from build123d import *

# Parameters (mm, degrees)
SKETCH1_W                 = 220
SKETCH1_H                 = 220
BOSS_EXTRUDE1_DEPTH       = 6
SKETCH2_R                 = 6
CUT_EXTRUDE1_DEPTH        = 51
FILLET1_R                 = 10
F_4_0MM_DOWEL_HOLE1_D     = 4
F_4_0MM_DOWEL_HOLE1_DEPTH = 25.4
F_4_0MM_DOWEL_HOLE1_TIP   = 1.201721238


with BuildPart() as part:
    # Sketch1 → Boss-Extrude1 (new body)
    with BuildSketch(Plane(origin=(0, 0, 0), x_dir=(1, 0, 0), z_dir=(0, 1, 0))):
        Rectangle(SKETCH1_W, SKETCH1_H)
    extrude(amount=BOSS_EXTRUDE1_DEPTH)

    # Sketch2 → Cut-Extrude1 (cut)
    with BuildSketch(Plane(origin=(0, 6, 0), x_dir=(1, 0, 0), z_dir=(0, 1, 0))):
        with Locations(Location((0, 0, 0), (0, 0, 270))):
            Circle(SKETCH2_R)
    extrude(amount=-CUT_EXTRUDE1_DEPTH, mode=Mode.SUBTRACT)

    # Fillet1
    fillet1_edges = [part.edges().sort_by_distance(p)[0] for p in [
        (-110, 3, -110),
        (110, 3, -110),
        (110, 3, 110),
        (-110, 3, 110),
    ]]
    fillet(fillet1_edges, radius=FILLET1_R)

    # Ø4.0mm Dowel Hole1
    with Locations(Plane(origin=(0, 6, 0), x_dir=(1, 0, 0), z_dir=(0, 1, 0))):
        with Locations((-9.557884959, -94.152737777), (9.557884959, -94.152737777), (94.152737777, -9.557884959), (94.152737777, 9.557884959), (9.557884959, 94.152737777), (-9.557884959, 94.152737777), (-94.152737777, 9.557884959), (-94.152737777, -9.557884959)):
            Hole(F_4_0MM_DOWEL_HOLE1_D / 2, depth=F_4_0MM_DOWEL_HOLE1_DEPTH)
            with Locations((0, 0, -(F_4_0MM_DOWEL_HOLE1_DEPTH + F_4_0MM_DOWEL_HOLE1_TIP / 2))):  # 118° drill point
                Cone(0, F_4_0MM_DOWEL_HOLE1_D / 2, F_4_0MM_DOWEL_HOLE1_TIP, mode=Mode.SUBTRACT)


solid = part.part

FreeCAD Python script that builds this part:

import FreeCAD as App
import Part
import Sketcher

V = App.Vector
Q = App.Units.Quantity


def edges_at(feature, points):
    """Names of the edges that pass closest to the given points."""
    edges = feature.Shape.Edges
    near = lambda p: min(range(len(edges)), key=lambda i: edges[i].distToShape(Part.Vertex(*p))[0])
    return sorted({f"Edge{near(p) + 1}" for p in points})

doc = App.newDocument("Part")
params = doc.addObject("Spreadsheet::Sheet", "Params")
for row, (alias, value) in enumerate([
    ("sketch1_width", "220 mm"),
    ("pad1_length", "6 mm"),
    ("sketch2_diameter", "12 mm"),
    ("pocket1_length", "51 mm"),
    ("fillet_radius", "10 mm"),
    ("sketch3_diameter", "4 mm"),
    ("hole_diameter", "4 mm"),
    ("hole_depth", "25.4 mm"),
], start=1):
    params.set(f"A{row}", alias)
    params.set(f"B{row}", "=" + value)
    params.setAlias(f"B{row}", alias)

body = doc.addObject("PartDesign::Body", "Body")

sketch1 = body.newObject("Sketcher::SketchObject", "Sketch")
sketch1.AttachmentSupport = (doc.getObject("XZ_Plane"), [""])
sketch1.MapMode = "FlatFace"
sketch1.addGeometry(Part.LineSegment(V(-110, -110, 0), V(-110, 110, 0)), False)
sketch1.addGeometry(Part.LineSegment(V(-110, 110, 0), V(110, 110, 0)), False)
sketch1.addGeometry(Part.LineSegment(V(110, 110, 0), V(110, -110, 0)), False)
sketch1.addGeometry(Part.LineSegment(V(110, -110, 0), V(-110, -110, 0)), False)
sketch1.addConstraint(Sketcher.Constraint("Coincident", 0, 2, 1, 1))
sketch1.addConstraint(Sketcher.Constraint("Coincident", 1, 2, 2, 1))
sketch1.addConstraint(Sketcher.Constraint("Coincident", 2, 2, 3, 1))
sketch1.addConstraint(Sketcher.Constraint("Coincident", 3, 2, 0, 1))
sketch1.addConstraint(Sketcher.Constraint("Vertical", 0))
sketch1.addConstraint(Sketcher.Constraint("Horizontal", 1))
sketch1.addConstraint(Sketcher.Constraint("Vertical", 2))
sketch1.addConstraint(Sketcher.Constraint("Horizontal", 3))
sketch1.addConstraint(Sketcher.Constraint("Symmetric", 0, 2, 2, 2, -1, 1))
sketch1.addConstraint(Sketcher.Constraint("Equal", 3, 0))
sketch1.addConstraint(Sketcher.Constraint("DistanceX", 1, 1, 1, 2, Q("220 mm")))
sketch1.setExpression("Constraints[10]", "Params.sketch1_width")
pad1 = body.newObject("PartDesign::Pad", "Pad")
pad1.Profile = sketch1
pad1.setExpression("Length", "Params.pad1_length")
pad1.Reversed = True

sketch2 = body.newObject("Sketcher::SketchObject", "Sketch001")
sketch2.AttachmentSupport = (doc.getObject("XZ_Plane"), [""])
sketch2.MapMode = "FlatFace"
sketch2.AttachmentOffset = App.Placement(V(0, 0, -6), App.Rotation())
sketch2.addGeometry(Part.Circle(V(0, 0, 0), V(0, 0, 1), 6), False)
sketch2.addConstraint(Sketcher.Constraint("Coincident", 0, 3, -1, 1))
sketch2.addConstraint(Sketcher.Constraint("Diameter", 0, Q("12 mm")))
sketch2.setExpression("Constraints[1]", "Params.sketch2_diameter")
pocket1 = body.newObject("PartDesign::Pocket", "Pocket")
pocket1.Profile = sketch2
pocket1.setExpression("Length", "Params.pocket1_length")
pocket1.Reversed = True
doc.recompute()

fillet = body.newObject("PartDesign::Fillet", "Fillet")
fillet.Base = (pocket1, edges_at(pocket1, [
    (-110, 3, -110),
    (110, 3, -110),
    (110, 3, 110),
    (-110, 3, 110),
]))
fillet.setExpression("Radius", "Params.fillet_radius")

sketch3 = body.newObject("Sketcher::SketchObject", "Sketch002")
sketch3.AttachmentSupport = (doc.getObject("XZ_Plane"), [""])
sketch3.MapMode = "FlatFace"
sketch3.AttachmentOffset = App.Placement(V(0, 0, -6), App.Rotation())
sketch3.addGeometry(Part.Circle(V(-9.557885, 94.152738, 0), V(0, 0, 1), 2), False)
sketch3.addGeometry(Part.Circle(V(9.557885, 94.152738, 0), V(0, 0, 1), 2), False)
sketch3.addGeometry(Part.Circle(V(94.152738, 9.557885, 0), V(0, 0, 1), 2), False)
sketch3.addGeometry(Part.Circle(V(94.152738, -9.557885, 0), V(0, 0, 1), 2), False)
sketch3.addGeometry(Part.Circle(V(9.557885, -94.152738, 0), V(0, 0, 1), 2), False)
sketch3.addGeometry(Part.Circle(V(-9.557885, -94.152738, 0), V(0, 0, 1), 2), False)
sketch3.addGeometry(Part.Circle(V(-94.152738, -9.557885, 0), V(0, 0, 1), 2), False)
sketch3.addGeometry(Part.Circle(V(-94.152738, 9.557885, 0), V(0, 0, 1), 2), False)
sketch3.addConstraint(Sketcher.Constraint("Equal", 0, 1))
sketch3.addConstraint(Sketcher.Constraint("Equal", 1, 2))
sketch3.addConstraint(Sketcher.Constraint("Equal", 2, 3))
sketch3.addConstraint(Sketcher.Constraint("Equal", 3, 4))
sketch3.addConstraint(Sketcher.Constraint("Equal", 4, 5))
sketch3.addConstraint(Sketcher.Constraint("Equal", 5, 6))
sketch3.addConstraint(Sketcher.Constraint("Equal", 6, 7))
sketch3.addConstraint(Sketcher.Constraint("Symmetric", 0, 3, 4, 3, -1, 1))
sketch3.addConstraint(Sketcher.Constraint("Symmetric", 1, 3, 5, 3, -1, 1))
sketch3.addConstraint(Sketcher.Constraint("Symmetric", 2, 3, 6, 3, -1, 1))
sketch3.addConstraint(Sketcher.Constraint("Symmetric", 3, 3, 7, 3, -1, 1))
sketch3.addConstraint(Sketcher.Constraint("Symmetric", 0, 3, 1, 3, -2))
sketch3.addConstraint(Sketcher.Constraint("Symmetric", 3, 3, 6, 3, -2))
sketch3.addConstraint(Sketcher.Constraint("Diameter", 0, Q("4 mm")))
sketch3.addConstraint(Sketcher.Constraint("DistanceX", 0, 3, 1, 3, Q("19.11577 mm")))
sketch3.addConstraint(Sketcher.Constraint("DistanceY", 3, 3, 2, 3, Q("19.11577 mm")))
sketch3.addConstraint(Sketcher.Constraint("DistanceY", -1, 1, 0, 3, Q("94.152738 mm")))
sketch3.addConstraint(Sketcher.Constraint("DistanceX", -1, 1, 2, 3, Q("94.152738 mm")))
sketch3.setExpression("Constraints[13]", "Params.sketch3_diameter")
doc.recompute()
hole = body.newObject("PartDesign::Hole", "Hole")
hole.Profile = sketch3
hole.ThreadType = "None"
hole.setExpression("Diameter", "Params.hole_diameter")
hole.DepthType = "Dimension"
hole.setExpression("Depth", "Params.hole_depth")
hole.DrillPoint = "Angled"
hole.DrillPointAngle = 118
hole.Reversed = True

doc.recompute()
